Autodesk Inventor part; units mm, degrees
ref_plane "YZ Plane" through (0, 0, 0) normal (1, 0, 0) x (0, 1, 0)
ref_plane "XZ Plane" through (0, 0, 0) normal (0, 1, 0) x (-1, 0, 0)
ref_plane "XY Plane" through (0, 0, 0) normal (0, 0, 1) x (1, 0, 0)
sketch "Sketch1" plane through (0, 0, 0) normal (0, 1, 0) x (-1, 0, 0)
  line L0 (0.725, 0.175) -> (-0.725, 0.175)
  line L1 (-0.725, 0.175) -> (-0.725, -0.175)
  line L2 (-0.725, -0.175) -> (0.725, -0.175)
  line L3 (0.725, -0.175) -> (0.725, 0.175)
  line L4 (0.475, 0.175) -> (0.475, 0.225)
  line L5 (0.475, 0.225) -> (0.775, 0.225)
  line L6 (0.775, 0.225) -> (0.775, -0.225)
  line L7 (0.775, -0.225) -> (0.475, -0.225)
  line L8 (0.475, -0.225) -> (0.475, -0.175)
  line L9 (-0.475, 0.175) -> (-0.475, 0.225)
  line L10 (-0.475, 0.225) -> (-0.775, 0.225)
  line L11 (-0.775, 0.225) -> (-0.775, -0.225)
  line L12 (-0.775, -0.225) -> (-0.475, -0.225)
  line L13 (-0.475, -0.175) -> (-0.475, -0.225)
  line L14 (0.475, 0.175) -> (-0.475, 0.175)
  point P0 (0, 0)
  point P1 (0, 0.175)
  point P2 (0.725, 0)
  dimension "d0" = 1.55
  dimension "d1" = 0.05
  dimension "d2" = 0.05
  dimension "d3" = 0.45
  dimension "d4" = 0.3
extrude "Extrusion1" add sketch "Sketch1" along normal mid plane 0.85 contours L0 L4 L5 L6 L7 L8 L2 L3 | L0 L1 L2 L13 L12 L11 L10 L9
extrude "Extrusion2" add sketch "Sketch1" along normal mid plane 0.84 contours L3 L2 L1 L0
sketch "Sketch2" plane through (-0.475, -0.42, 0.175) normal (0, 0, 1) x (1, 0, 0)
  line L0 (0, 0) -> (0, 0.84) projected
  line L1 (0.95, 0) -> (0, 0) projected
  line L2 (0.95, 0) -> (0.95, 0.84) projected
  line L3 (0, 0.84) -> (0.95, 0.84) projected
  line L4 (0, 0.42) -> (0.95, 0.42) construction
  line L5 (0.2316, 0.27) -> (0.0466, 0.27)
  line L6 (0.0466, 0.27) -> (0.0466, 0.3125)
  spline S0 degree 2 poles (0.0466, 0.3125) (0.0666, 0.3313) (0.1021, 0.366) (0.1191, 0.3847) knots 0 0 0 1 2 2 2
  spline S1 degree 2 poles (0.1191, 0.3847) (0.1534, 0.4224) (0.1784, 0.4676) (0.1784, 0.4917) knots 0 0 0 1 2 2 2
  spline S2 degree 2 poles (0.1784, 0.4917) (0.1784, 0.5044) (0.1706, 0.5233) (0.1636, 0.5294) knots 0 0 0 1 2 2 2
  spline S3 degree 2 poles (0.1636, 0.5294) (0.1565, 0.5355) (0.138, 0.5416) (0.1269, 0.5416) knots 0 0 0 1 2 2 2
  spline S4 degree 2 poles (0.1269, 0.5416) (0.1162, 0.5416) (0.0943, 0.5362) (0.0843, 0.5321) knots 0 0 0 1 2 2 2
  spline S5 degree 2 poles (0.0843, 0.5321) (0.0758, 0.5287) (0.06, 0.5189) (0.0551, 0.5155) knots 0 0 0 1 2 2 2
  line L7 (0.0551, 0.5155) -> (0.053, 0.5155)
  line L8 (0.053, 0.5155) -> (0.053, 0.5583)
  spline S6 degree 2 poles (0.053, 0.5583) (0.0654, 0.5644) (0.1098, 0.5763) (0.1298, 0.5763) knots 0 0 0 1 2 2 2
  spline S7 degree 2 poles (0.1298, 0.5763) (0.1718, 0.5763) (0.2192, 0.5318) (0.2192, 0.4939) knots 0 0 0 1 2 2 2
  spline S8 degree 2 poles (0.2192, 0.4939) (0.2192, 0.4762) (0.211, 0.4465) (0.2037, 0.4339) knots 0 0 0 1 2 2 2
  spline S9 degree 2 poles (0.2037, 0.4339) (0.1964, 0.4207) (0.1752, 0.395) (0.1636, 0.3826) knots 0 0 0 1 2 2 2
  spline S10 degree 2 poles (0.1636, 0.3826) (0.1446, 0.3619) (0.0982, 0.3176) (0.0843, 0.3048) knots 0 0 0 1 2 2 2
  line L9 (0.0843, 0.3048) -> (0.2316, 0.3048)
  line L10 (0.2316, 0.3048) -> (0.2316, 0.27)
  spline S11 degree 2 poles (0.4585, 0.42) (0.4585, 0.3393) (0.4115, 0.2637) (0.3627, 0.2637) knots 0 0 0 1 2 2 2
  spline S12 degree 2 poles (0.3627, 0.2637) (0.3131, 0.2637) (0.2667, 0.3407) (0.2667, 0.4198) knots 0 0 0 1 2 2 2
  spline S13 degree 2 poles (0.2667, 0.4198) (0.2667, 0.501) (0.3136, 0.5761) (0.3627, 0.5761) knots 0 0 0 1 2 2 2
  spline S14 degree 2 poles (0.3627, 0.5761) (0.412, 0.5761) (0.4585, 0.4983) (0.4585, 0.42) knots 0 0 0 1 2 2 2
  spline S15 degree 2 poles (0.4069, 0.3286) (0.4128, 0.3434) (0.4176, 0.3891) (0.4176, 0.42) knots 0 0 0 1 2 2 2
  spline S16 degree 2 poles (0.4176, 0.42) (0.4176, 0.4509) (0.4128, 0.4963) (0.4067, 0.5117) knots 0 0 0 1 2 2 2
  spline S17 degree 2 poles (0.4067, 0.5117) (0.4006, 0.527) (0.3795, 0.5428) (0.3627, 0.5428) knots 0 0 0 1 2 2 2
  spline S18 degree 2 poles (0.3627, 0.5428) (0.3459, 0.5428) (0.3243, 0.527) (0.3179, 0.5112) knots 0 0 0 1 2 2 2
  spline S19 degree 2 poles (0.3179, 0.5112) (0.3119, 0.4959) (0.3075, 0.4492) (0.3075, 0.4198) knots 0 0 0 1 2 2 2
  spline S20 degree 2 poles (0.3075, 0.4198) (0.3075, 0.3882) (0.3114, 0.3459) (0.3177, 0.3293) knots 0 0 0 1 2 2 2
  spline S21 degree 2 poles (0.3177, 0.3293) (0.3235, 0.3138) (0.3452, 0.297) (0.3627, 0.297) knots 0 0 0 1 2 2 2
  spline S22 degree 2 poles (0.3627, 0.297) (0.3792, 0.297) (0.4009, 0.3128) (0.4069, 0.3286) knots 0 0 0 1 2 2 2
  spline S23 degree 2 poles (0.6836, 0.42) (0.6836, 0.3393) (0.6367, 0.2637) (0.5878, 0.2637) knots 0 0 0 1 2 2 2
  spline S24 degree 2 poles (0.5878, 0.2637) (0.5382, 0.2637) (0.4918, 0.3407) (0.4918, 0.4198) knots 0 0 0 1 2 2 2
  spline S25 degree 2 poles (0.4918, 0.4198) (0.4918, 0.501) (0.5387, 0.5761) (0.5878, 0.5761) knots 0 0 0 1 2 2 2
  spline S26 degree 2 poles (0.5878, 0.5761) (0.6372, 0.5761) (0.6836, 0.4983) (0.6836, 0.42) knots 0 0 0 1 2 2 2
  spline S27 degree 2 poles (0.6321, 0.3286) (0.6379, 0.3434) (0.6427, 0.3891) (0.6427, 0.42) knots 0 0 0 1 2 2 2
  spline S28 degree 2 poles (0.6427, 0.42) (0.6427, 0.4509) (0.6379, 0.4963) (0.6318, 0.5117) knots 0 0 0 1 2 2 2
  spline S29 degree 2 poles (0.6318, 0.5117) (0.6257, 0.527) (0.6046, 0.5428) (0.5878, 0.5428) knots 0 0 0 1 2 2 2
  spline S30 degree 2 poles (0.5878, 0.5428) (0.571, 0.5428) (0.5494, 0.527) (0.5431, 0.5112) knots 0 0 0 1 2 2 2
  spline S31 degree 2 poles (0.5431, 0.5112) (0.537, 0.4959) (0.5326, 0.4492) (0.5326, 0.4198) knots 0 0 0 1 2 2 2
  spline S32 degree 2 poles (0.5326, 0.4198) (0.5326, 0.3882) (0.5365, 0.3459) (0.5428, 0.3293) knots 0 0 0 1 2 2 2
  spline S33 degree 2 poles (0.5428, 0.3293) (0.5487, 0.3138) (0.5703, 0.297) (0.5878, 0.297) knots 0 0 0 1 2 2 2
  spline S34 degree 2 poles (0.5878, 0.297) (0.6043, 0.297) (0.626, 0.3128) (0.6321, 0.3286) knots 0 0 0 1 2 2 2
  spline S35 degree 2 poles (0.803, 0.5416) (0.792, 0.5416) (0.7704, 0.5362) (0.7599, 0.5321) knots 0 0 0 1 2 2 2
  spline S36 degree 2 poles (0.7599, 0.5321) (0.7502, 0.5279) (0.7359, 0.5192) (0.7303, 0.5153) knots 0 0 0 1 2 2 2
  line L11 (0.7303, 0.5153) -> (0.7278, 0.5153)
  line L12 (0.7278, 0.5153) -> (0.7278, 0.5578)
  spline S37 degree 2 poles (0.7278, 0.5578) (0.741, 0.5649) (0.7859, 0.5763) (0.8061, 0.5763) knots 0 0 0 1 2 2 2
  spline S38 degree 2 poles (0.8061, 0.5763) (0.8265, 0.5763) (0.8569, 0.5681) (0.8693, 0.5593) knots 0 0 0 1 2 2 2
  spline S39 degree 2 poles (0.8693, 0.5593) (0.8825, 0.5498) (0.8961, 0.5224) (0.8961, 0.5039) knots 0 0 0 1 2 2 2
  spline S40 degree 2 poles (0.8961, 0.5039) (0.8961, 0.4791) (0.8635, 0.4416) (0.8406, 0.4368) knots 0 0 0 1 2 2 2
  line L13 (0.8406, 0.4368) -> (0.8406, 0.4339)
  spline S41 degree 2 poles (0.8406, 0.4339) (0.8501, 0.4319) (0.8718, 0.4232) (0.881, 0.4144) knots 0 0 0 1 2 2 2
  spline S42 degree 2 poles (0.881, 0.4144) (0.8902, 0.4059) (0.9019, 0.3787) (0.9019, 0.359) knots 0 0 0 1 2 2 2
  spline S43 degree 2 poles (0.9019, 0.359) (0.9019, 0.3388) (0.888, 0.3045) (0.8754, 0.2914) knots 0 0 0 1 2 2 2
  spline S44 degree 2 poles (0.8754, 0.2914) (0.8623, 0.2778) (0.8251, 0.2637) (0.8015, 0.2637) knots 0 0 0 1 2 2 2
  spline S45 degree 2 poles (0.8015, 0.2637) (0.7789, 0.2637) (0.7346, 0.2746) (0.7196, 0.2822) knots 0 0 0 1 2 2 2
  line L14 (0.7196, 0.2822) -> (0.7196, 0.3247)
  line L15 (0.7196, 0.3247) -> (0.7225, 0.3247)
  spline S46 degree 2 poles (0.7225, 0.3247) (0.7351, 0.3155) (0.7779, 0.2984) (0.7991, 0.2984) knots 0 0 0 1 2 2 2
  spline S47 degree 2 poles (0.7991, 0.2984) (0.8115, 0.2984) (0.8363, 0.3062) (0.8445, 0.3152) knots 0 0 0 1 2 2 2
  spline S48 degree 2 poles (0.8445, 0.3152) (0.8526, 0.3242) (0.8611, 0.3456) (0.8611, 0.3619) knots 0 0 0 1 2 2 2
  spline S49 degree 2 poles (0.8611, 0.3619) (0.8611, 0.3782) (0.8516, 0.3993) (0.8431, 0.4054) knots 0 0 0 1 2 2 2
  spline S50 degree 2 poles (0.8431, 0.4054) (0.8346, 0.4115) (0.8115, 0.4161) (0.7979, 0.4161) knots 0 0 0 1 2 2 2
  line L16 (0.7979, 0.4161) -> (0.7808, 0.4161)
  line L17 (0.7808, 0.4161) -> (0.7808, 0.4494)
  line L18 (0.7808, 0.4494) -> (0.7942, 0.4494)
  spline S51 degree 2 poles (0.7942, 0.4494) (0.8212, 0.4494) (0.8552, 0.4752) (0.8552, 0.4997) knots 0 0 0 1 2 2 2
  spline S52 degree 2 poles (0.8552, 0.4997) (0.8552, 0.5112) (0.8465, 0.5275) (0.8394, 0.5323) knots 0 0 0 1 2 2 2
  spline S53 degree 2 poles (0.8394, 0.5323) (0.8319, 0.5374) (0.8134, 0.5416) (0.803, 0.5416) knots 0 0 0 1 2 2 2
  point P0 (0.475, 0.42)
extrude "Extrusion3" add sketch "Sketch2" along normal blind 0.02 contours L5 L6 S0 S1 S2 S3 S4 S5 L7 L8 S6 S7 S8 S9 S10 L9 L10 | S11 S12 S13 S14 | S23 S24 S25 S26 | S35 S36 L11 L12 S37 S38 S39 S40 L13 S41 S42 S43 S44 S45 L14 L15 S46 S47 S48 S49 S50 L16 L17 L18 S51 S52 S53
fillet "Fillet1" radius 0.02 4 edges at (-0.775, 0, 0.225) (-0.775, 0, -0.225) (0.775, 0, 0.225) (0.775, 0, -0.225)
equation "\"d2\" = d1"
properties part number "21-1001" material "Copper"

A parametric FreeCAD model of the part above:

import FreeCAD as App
import Part
import Sketcher
from FreeCAD import Vector


def edges_at(feature, points):
    """Names of the edges that pass closest to the given points."""
    edges = feature.Shape.Edges
    near = lambda p: min(range(len(edges)), key=lambda i: edges[i].distToShape(Part.Vertex(*p))[0])
    return sorted({f"Edge{near(p) + 1}" for p in points})


def add_polygon(sketch, points):
    """Adds a closed chain of lines whose ends are joined by coincident constraints."""
    first, n = sketch.GeometryCount, len(points)
    for a, b in zip(points, points[1:] + points[:1]):
        sketch.addGeometry(Part.LineSegment(App.Vector(*a, 0), App.Vector(*b, 0)), False)
    for i in range(n):
        sketch.addConstraint(Sketcher.Constraint("Coincident", first + i, 2, first + (i + 1) % n, 1))

doc = App.newDocument("Part")
body = doc.addObject("PartDesign::Body", "Body")
body.AllowCompound = True

# Sketch on XZ plane
sketch1 = doc.addObject("Sketcher::SketchObject", "Sketch")
body.addObject(sketch1)
sketch1.AttachmentSupport = (doc.XZ_Plane, [""])
sketch1.MapMode = "FlatFace"
add_polygon(sketch1, [(-0.47, 0.17), (-0.72, 0.17), (-0.72, -0.17), (-0.47, -0.17), (-0.47, -0.23), (-0.78, -0.23), (-0.78, 0.23), (-0.47, 0.23)])  # lines 0-7
add_polygon(sketch1, [(0.72, 0.17), (0.47, 0.17), (0.47, 0.23), (0.78, 0.23), (0.78, -0.23), (0.47, -0.23), (0.47, -0.17), (0.72, -0.17)])  # lines 8-15
sketch1.addConstraint(Sketcher.Constraint("Horizontal", 0))
sketch1.addConstraint(Sketcher.Constraint("Vertical", 1))
sketch1.addConstraint(Sketcher.Constraint("Horizontal", 2))
sketch1.addConstraint(Sketcher.Constraint("Vertical", 3))
sketch1.addConstraint(Sketcher.Constraint("Horizontal", 4))
sketch1.addConstraint(Sketcher.Constraint("Vertical", 5))
sketch1.addConstraint(Sketcher.Constraint("Horizontal", 6))
sketch1.addConstraint(Sketcher.Constraint("Vertical", 7))
sketch1.addConstraint(Sketcher.Constraint("Horizontal", 8))
sketch1.addConstraint(Sketcher.Constraint("Vertical", 9))
sketch1.addConstraint(Sketcher.Constraint("Horizontal", 10))
sketch1.addConstraint(Sketcher.Constraint("Vertical", 11))
sketch1.addConstraint(Sketcher.Constraint("Horizontal", 12))
sketch1.addConstraint(Sketcher.Constraint("Vertical", 13))
sketch1.addConstraint(Sketcher.Constraint("Horizontal", 14))
sketch1.addConstraint(Sketcher.Constraint("Vertical", 15))
sketch1.addConstraint(Sketcher.Constraint("Symmetric", 2, 2, 8, 2, -1, 1))
sketch1.addConstraint(Sketcher.Constraint("Symmetric", 4, 2, 10, 2, -1, 1))
sketch1.addConstraint(Sketcher.Constraint("Symmetric", 6, 2, 12, 2, -1, 1))
sketch1.addConstraint(Sketcher.Constraint("Symmetric", 0, 2, 14, 2, -1, 1))
sketch1.addConstraint(Sketcher.Constraint("Symmetric", 7, 2, 8, 2, -2))
sketch1.addConstraint(Sketcher.Constraint("Horizontal", 6, 2, 9, 2))
sketch1.addConstraint(Sketcher.Constraint("DistanceX", 4, 2, 4, 1, 0.3))
sketch1.addConstraint(Sketcher.Constraint("DistanceY", 3, 2, 3, 1, 0.05))
sketch1.addConstraint(Sketcher.Constraint("DistanceY", 5, 1, 5, 2, 0.45))
sketch1.addConstraint(Sketcher.Constraint("DistanceX", 4, 2, 1, 2, 0.05))
sketch1.addConstraint(Sketcher.Constraint("DistanceX", 0, 2, 8, 2, 1.2))
pad1 = doc.addObject("PartDesign::Pad", "Pad")
body.addObject(pad1)
pad1.Profile = sketch1
pad1.Length = 0.85
pad1.Midplane = True

# Sketch on XZ plane
sketch2 = doc.addObject("Sketcher::SketchObject", "Sketch001")
body.addObject(sketch2)
sketch2.AttachmentSupport = (doc.XZ_Plane, [""])
sketch2.MapMode = "FlatFace"
add_polygon(sketch2, [(-0.72, -0.17), (-0.72, 0.17), (0.72, 0.17), (0.72, -0.17)])  # lines 0-3
sketch2.addConstraint(Sketcher.Constraint("Vertical", 0))
sketch2.addConstraint(Sketcher.Constraint("Horizontal", 1))
sketch2.addConstraint(Sketcher.Constraint("Vertical", 2))
sketch2.addConstraint(Sketcher.Constraint("Horizontal", 3))
sketch2.addConstraint(Sketcher.Constraint("Symmetric", 0, 2, 2, 2, -1, 1))
sketch2.addConstraint(Sketcher.Constraint("DistanceX", 1, 1, 1, 2, 1.45))
sketch2.addConstraint(Sketcher.Constraint("DistanceY", 0, 1, 0, 2, 0.35))
pad2 = doc.addObject("PartDesign::Pad", "Pad001")
body.addObject(pad2)
pad2.Profile = sketch2
pad2.Length = 0.84
pad2.Midplane = True

# Sketch on XY plane
sketch3 = doc.addObject("Sketcher::SketchObject", "Sketch002")
body.addObject(sketch3)
sketch3.AttachmentSupport = (doc.XY_Plane, [""])
sketch3.MapMode = "FlatFace"
sketch3.AttachmentOffset = App.Placement(Vector(0, 0, 0.175), App.Rotation())
sketch3.addGeometry(Part.LineSegment(Vector(-0.4284, -0.15, 0), Vector(-0.2434, -0.15, 0)), False)
sketch3.addGeometry(Part.LineSegment(Vector(-0.2434, -0.15, 0), Vector(-0.2434, -0.1152, 0)), False)
sketch3.addGeometry(Part.LineSegment(Vector(-0.2434, -0.1152, 0), Vector(-0.3907, -0.1152, 0)), False)
sketch3.addGeometry(Part.BSplineCurve([Vector(-0.3114, -0.0374, 0), Vector(-0.3304, -0.0581, 0), Vector(-0.3768, -0.1024, 0), Vector(-0.3907, -0.1152, 0)], [3, 1, 3], [0, 1, 2], False, 2, [1, 1, 1, 1], False), False)
sketch3.addGeometry(Part.BSplineCurve([Vector(-0.2713, 0.0139, 0), Vector(-0.2786, 0.0007, 0), Vector(-0.2998, -0.025, 0), Vector(-0.3114, -0.0374, 0)], [3, 1, 3], [0, 1, 2], False, 2, [1, 1, 1, 1], False), False)
sketch3.addGeometry(Part.BSplineCurve([Vector(-0.2558, 0.0739, 0), Vector(-0.2558, 0.0562, 0), Vector(-0.264, 0.0265, 0), Vector(-0.2713, 0.0139, 0)], [3, 1, 3], [0, 1, 2], False, 2, [1, 1, 1, 1], False), False)
sketch3.addGeometry(Part.BSplineCurve([Vector(-0.3452, 0.1563, 0), Vector(-0.3032, 0.1563, 0), Vector(-0.2558, 0.1118, 0), Vector(-0.2558, 0.0739, 0)], [3, 1, 3], [0, 1, 2], False, 2, [1, 1, 1, 1], False), False)
sketch3.addGeometry(Part.BSplineCurve([Vector(-0.422, 0.1383, 0), Vector(-0.4096, 0.1444, 0), Vector(-0.3652, 0.1563, 0), Vector(-0.3452, 0.1563, 0)], [3, 1, 3], [0, 1, 2], False, 2, [1, 1, 1, 1], False), False)
sketch3.addGeometry(Part.LineSegment(Vector(-0.422, 0.1383, 0), Vector(-0.422, 0.0955, 0)), False)
sketch3.addGeometry(Part.LineSegment(Vector(-0.422, 0.0955, 0), Vector(-0.4199, 0.0955, 0)), False)
sketch3.addGeometry(Part.BSplineCurve([Vector(-0.3907, 0.1121, 0), Vector(-0.3992, 0.1087, 0), Vector(-0.415, 0.0989, 0), Vector(-0.4199, 0.0955, 0)], [3, 1, 3], [0, 1, 2], False, 2, [1, 1, 1, 1], False), False)
sketch3.addGeometry(Part.BSplineCurve([Vector(-0.3481, 0.1216, 0), Vector(-0.3588, 0.1216, 0), Vector(-0.3807, 0.1162, 0), Vector(-0.3907, 0.1121, 0)], [3, 1, 3], [0, 1, 2], False, 2, [1, 1, 1, 1], False), False)
sketch3.addGeometry(Part.BSplineCurve([Vector(-0.3114, 0.1094, 0), Vector(-0.3185, 0.1155, 0), Vector(-0.337, 0.1216, 0), Vector(-0.3481, 0.1216, 0)], [3, 1, 3], [0, 1, 2], False, 2, [1, 1, 1, 1], False), False)
sketch3.addGeometry(Part.BSplineCurve([Vector(-0.2966, 0.0717, 0), Vector(-0.2966, 0.0844, 0), Vector(-0.3044, 0.1033, 0), Vector(-0.3114, 0.1094, 0)], [3, 1, 3], [0, 1, 2], False, 2, [1, 1, 1, 1], False), False)
sketch3.addGeometry(Part.BSplineCurve([Vector(-0.3559, -0.0353, 0), Vector(-0.3216, 0.0024, 0), Vector(-0.2966, 0.0476, 0), Vector(-0.2966, 0.0717, 0)], [3, 1, 3], [0, 1, 2], False, 2, [1, 1, 1, 1], False), False)
sketch3.addGeometry(Part.BSplineCurve([Vector(-0.4284, -0.1075, 0), Vector(-0.4084, -0.0887, 0), Vector(-0.3729, -0.054, 0), Vector(-0.3559, -0.0353, 0)], [3, 1, 3], [0, 1, 2], False, 2, [1, 1, 1, 1], False), False)
sketch3.addGeometry(Part.LineSegment(Vector(-0.4284, -0.1075, 0), Vector(-0.4284, -0.15, 0)), False)
sketch3.addGeometry(Part.BSplineCurve([Vector(-0.0165, 0, 0), Vector(-0.0165, -0.0807, 0), Vector(-0.0635, -0.1563, 0), Vector(-0.1123, -0.1563, 0)], [3, 1, 3], [0, 1, 2], False, 2, [1, 1, 1, 1], False), False)
sketch3.addGeometry(Part.BSplineCurve([Vector(-0.1123, 0.1561, 0), Vector(-0.063, 0.1561, 0), Vector(-0.0165, 0.0783, 0), Vector(-0.0165, 0, 0)], [3, 1, 3], [0, 1, 2], False, 2, [1, 1, 1, 1], False), False)
sketch3.addGeometry(Part.BSplineCurve([Vector(-0.2083, -0.0002, 0), Vector(-0.2083, 0.081, 0), Vector(-0.1614, 0.1561, 0), Vector(-0.1123, 0.1561, 0)], [3, 1, 3], [0, 1, 2], False, 2, [1, 1, 1, 1], False), False)
sketch3.addGeometry(Part.BSplineCurve([Vector(-0.1123, -0.1563, 0), Vector(-0.1619, -0.1563, 0), Vector(-0.2083, -0.0793, 0), Vector(-0.2083, -0.0002, 0)], [3, 1, 3], [0, 1, 2], False, 2, [1, 1, 1, 1], False), False)
sketch3.addGeometry(Part.BSplineCurve([Vector(-0.0681, -0.0914, 0), Vector(-0.0622, -0.0766, 0), Vector(-0.0574, -0.0309, 0), Vector(-0.0574, 0, 0)], [3, 1, 3], [0, 1, 2], False, 2, [1, 1, 1, 1], False), False)
sketch3.addGeometry(Part.BSplineCurve([Vector(-0.1123, -0.123, 0), Vector(-0.0958, -0.123, 0), Vector(-0.0741, -0.1072, 0), Vector(-0.0681, -0.0914, 0)], [3, 1, 3], [0, 1, 2], False, 2, [1, 1, 1, 1], False), False)
sketch3.addGeometry(Part.BSplineCurve([Vector(-0.1573, -0.0907, 0), Vector(-0.1515, -0.1062, 0), Vector(-0.1298, -0.123, 0), Vector(-0.1123, -0.123, 0)], [3, 1, 3], [0, 1, 2], False, 2, [1, 1, 1, 1], False), False)
sketch3.addGeometry(Part.BSplineCurve([Vector(-0.1675, -0.0002, 0), Vector(-0.1675, -0.0318, 0), Vector(-0.1636, -0.0741, 0), Vector(-0.1573, -0.0907, 0)], [3, 1, 3], [0, 1, 2], False, 2, [1, 1, 1, 1], False), False)
sketch3.addGeometry(Part.BSplineCurve([Vector(-0.1571, 0.0912, 0), Vector(-0.1631, 0.0759, 0), Vector(-0.1675, 0.0292, 0), Vector(-0.1675, -0.0002, 0)], [3, 1, 3], [0, 1, 2], False, 2, [1, 1, 1, 1], False), False)
sketch3.addGeometry(Part.BSplineCurve([Vector(-0.1123, 0.1228, 0), Vector(-0.1291, 0.1228, 0), Vector(-0.1507, 0.107, 0), Vector(-0.1571, 0.0912, 0)], [3, 1, 3], [0, 1, 2], False, 2, [1, 1, 1, 1], False), False)
sketch3.addGeometry(Part.BSplineCurve([Vector(-0.0683, 0.0917, 0), Vector(-0.0744, 0.107, 0), Vector(-0.0955, 0.1228, 0), Vector(-0.1123, 0.1228, 0)], [3, 1, 3], [0, 1, 2], False, 2, [1, 1, 1, 1], False), False)
sketch3.addGeometry(Part.BSplineCurve([Vector(-0.0574, 0, 0), Vector(-0.0574, 0.0309, 0), Vector(-0.0622, 0.0763, 0), Vector(-0.0683, 0.0917, 0)], [3, 1, 3], [0, 1, 2], False, 2, [1, 1, 1, 1], False), False)
sketch3.addGeometry(Part.BSplineCurve([Vector(0.2086, 0, 0), Vector(0.2086, -0.0807, 0), Vector(0.1617, -0.1563, 0), Vector(0.1128, -0.1563, 0)], [3, 1, 3], [0, 1, 2], False, 2, [1, 1, 1, 1], False), False)
sketch3.addGeometry(Part.BSplineCurve([Vector(0.1128, 0.1561, 0), Vector(0.1622, 0.1561, 0), Vector(0.2086, 0.0783, 0), Vector(0.2086, 0, 0)], [3, 1, 3], [0, 1, 2], False, 2, [1, 1, 1, 1], False), False)
sketch3.addGeometry(Part.BSplineCurve([Vector(0.0168, -0.0002, 0), Vector(0.0168, 0.081, 0), Vector(0.0637, 0.1561, 0), Vector(0.1128, 0.1561, 0)], [3, 1, 3], [0, 1, 2], False, 2, [1, 1, 1, 1], False), False)
sketch3.addGeometry(Part.BSplineCurve([Vector(0.1128, -0.1563, 0), Vector(0.0632, -0.1563, 0), Vector(0.0168, -0.0793, 0), Vector(0.0168, -0.0002, 0)], [3, 1, 3], [0, 1, 2], False, 2, [1, 1, 1, 1], False), False)
sketch3.addGeometry(Part.BSplineCurve([Vector(0.1571, -0.0914, 0), Vector(0.1629, -0.0766, 0), Vector(0.1677, -0.0309, 0), Vector(0.1677, 0, 0)], [3, 1, 3], [0, 1, 2], False, 2, [1, 1, 1, 1], False), False)
sketch3.addGeometry(Part.BSplineCurve([Vector(0.1128, -0.123, 0), Vector(0.1293, -0.123, 0), Vector(0.151, -0.1072, 0), Vector(0.1571, -0.0914, 0)], [3, 1, 3], [0, 1, 2], False, 2, [1, 1, 1, 1], False), False)
sketch3.addGeometry(Part.BSplineCurve([Vector(0.0678, -0.0907, 0), Vector(0.0737, -0.1062, 0), Vector(0.0953, -0.123, 0), Vector(0.1128, -0.123, 0)], [3, 1, 3], [0, 1, 2], False, 2, [1, 1, 1, 1], False), False)
sketch3.addGeometry(Part.BSplineCurve([Vector(0.0576, -0.0002, 0), Vector(0.0576, -0.0318, 0), Vector(0.0615, -0.0741, 0), Vector(0.0678, -0.0907, 0)], [3, 1, 3], [0, 1, 2], False, 2, [1, 1, 1, 1], False), False)
sketch3.addGeometry(Part.BSplineCurve([Vector(0.0681, 0.0912, 0), Vector(0.062, 0.0759, 0), Vector(0.0576, 0.0292, 0), Vector(0.0576, -0.0002, 0)], [3, 1, 3], [0, 1, 2], False, 2, [1, 1, 1, 1], False), False)
sketch3.addGeometry(Part.BSplineCurve([Vector(0.1128, 0.1228, 0), Vector(0.096, 0.1228, 0), Vector(0.0744, 0.107, 0), Vector(0.0681, 0.0912, 0)], [3, 1, 3], [0, 1, 2], False, 2, [1, 1, 1, 1], False), False)
sketch3.addGeometry(Part.BSplineCurve([Vector(0.1568, 0.0917, 0), Vector(0.1507, 0.107, 0), Vector(0.1296, 0.1228, 0), Vector(0.1128, 0.1228, 0)], [3, 1, 3], [0, 1, 2], False, 2, [1, 1, 1, 1], False), False)
sketch3.addGeometry(Part.BSplineCurve([Vector(0.1677, 0, 0), Vector(0.1677, 0.0309, 0), Vector(0.1629, 0.0763, 0), Vector(0.1568, 0.0917, 0)], [3, 1, 3], [0, 1, 2], False, 2, [1, 1, 1, 1], False), False)
sketch3.addGeometry(Part.BSplineCurve([Vector(0.328, 0.1216, 0), Vector(0.317, 0.1216, 0), Vector(0.2954, 0.1162, 0), Vector(0.2849, 0.1121, 0)], [3, 1, 3], [0, 1, 2], False, 2, [1, 1, 1, 1], False), False)
sketch3.addGeometry(Part.BSplineCurve([Vector(0.3644, 0.1123, 0), Vector(0.3569, 0.1174, 0), Vector(0.3384, 0.1216, 0), Vector(0.328, 0.1216, 0)], [3, 1, 3], [0, 1, 2], False, 2, [1, 1, 1, 1], False), False)
sketch3.addGeometry(Part.BSplineCurve([Vector(0.3802, 0.0797, 0), Vector(0.3802, 0.0912, 0), Vector(0.3715, 0.1075, 0), Vector(0.3644, 0.1123, 0)], [3, 1, 3], [0, 1, 2], False, 2, [1, 1, 1, 1], False), False)
sketch3.addGeometry(Part.BSplineCurve([Vector(0.3192, 0.0294, 0), Vector(0.3462, 0.0294, 0), Vector(0.3802, 0.0552, 0), Vector(0.3802, 0.0797, 0)], [3, 1, 3], [0, 1, 2], False, 2, [1, 1, 1, 1], False), False)
sketch3.addGeometry(Part.LineSegment(Vector(0.3192, 0.0294, 0), Vector(0.3058, 0.0294, 0)), False)
sketch3.addGeometry(Part.LineSegment(Vector(0.3058, 0.0294, 0), Vector(0.3058, -0.0039, 0)), False)
sketch3.addGeometry(Part.LineSegment(Vector(0.3058, -0.0039, 0), Vector(0.3229, -0.0039, 0)), False)
sketch3.addGeometry(Part.BSplineCurve([Vector(0.3681, -0.0146, 0), Vector(0.3596, -0.0085, 0), Vector(0.3365, -0.0039, 0), Vector(0.3229, -0.0039, 0)], [3, 1, 3], [0, 1, 2], False, 2, [1, 1, 1, 1], False), False)
sketch3.addGeometry(Part.BSplineCurve([Vector(0.3861, -0.0581, 0), Vector(0.3861, -0.0418, 0), Vector(0.3766, -0.0207, 0), Vector(0.3681, -0.0146, 0)], [3, 1, 3], [0, 1, 2], False, 2, [1, 1, 1, 1], False), False)
sketch3.addGeometry(Part.BSplineCurve([Vector(0.3695, -0.1048, 0), Vector(0.3776, -0.0958, 0), Vector(0.3861, -0.0744, 0), Vector(0.3861, -0.0581, 0)], [3, 1, 3], [0, 1, 2], False, 2, [1, 1, 1, 1], False), False)
sketch3.addGeometry(Part.BSplineCurve([Vector(0.3241, -0.1216, 0), Vector(0.3365, -0.1216, 0), Vector(0.3613, -0.1138, 0), Vector(0.3695, -0.1048, 0)], [3, 1, 3], [0, 1, 2], False, 2, [1, 1, 1, 1], False), False)
sketch3.addGeometry(Part.BSplineCurve([Vector(0.2475, -0.0953, 0), Vector(0.2601, -0.1045, 0), Vector(0.3029, -0.1216, 0), Vector(0.3241, -0.1216, 0)], [3, 1, 3], [0, 1, 2], False, 2, [1, 1, 1, 1], False), False)
sketch3.addGeometry(Part.LineSegment(Vector(0.2475, -0.0953, 0), Vector(0.2446, -0.0953, 0)), False)
sketch3.addGeometry(Part.LineSegment(Vector(0.2446, -0.0953, 0), Vector(0.2446, -0.1378, 0)), False)
sketch3.addGeometry(Part.BSplineCurve([Vector(0.3265, -0.1563, 0), Vector(0.3039, -0.1563, 0), Vector(0.2596, -0.1454, 0), Vector(0.2446, -0.1378, 0)], [3, 1, 3], [0, 1, 2], False, 2, [1, 1, 1, 1], False), False)
sketch3.addGeometry(Part.BSplineCurve([Vector(0.4004, -0.1286, 0), Vector(0.3873, -0.1422, 0), Vector(0.3501, -0.1563, 0), Vector(0.3265, -0.1563, 0)], [3, 1, 3], [0, 1, 2], False, 2, [1, 1, 1, 1], False), False)
sketch3.addGeometry(Part.BSplineCurve([Vector(0.4269, -0.061, 0), Vector(0.4269, -0.0812, 0), Vector(0.413, -0.1155, 0), Vector(0.4004, -0.1286, 0)], [3, 1, 3], [0, 1, 2], False, 2, [1, 1, 1, 1], False), False)
sketch3.addGeometry(Part.BSplineCurve([Vector(0.406, -0.0056, 0), Vector(0.4152, -0.0141, 0), Vector(0.4269, -0.0413, 0), Vector(0.4269, -0.061, 0)], [3, 1, 3], [0, 1, 2], False, 2, [1, 1, 1, 1], False), False)
sketch3.addGeometry(Part.BSplineCurve([Vector(0.3656, 0.0139, 0), Vector(0.3751, 0.0119, 0), Vector(0.3968, 0.0032, 0), Vector(0.406, -0.0056, 0)], [3, 1, 3], [0, 1, 2], False, 2, [1, 1, 1, 1], False), False)
sketch3.addGeometry(Part.LineSegment(Vector(0.3656, 0.0139, 0), Vector(0.3656, 0.0168, 0)), False)
sketch3.addGeometry(Part.BSplineCurve([Vector(0.4211, 0.0839, 0), Vector(0.4211, 0.0591, 0), Vector(0.3885, 0.0216, 0), Vector(0.3656, 0.0168, 0)], [3, 1, 3], [0, 1, 2], False, 2, [1, 1, 1, 1], False), False)
sketch3.addGeometry(Part.BSplineCurve([Vector(0.3943, 0.1393, 0), Vector(0.4075, 0.1298, 0), Vector(0.4211, 0.1024, 0), Vector(0.4211, 0.0839, 0)], [3, 1, 3], [0, 1, 2], False, 2, [1, 1, 1, 1], False), False)
sketch3.addGeometry(Part.BSplineCurve([Vector(0.3311, 0.1563, 0), Vector(0.3515, 0.1563, 0), Vector(0.3819, 0.1481, 0), Vector(0.3943, 0.1393, 0)], [3, 1, 3], [0, 1, 2], False, 2, [1, 1, 1, 1], False), False)
sketch3.addGeometry(Part.BSplineCurve([Vector(0.2528, 0.1378, 0), Vector(0.266, 0.1449, 0), Vector(0.3109, 0.1563, 0), Vector(0.3311, 0.1563, 0)], [3, 1, 3], [0, 1, 2], False, 2, [1, 1, 1, 1], False), False)
sketch3.addGeometry(Part.LineSegment(Vector(0.2528, 0.1378, 0), Vector(0.2528, 0.0953, 0)), False)
sketch3.addGeometry(Part.LineSegment(Vector(0.2528, 0.0953, 0), Vector(0.2553, 0.0953, 0)), False)
sketch3.addGeometry(Part.BSplineCurve([Vector(0.2849, 0.1121, 0), Vector(0.2752, 0.1079, 0), Vector(0.2609, 0.0992, 0), Vector(0.2553, 0.0953, 0)], [3, 1, 3], [0, 1, 2], False, 2, [1, 1, 1, 1], False), False)
sketch3.addConstraint(Sketcher.Constraint("Block", 3))
sketch3.addConstraint(Sketcher.Constraint("Block", 4))
sketch3.addConstraint(Sketcher.Constraint("Block", 5))
sketch3.addConstraint(Sketcher.Constraint("Block", 6))
sketch3.addConstraint(Sketcher.Constraint("Block", 7))
sketch3.addConstraint(Sketcher.Constraint("Block", 10))
sketch3.addConstraint(Sketcher.Constraint("Block", 11))
sketch3.addConstraint(Sketcher.Constraint("Block", 12))
sketch3.addConstraint(Sketcher.Constraint("Block", 13))
sketch3.addConstraint(Sketcher.Constraint("Block", 14))
sketch3.addConstraint(Sketcher.Constraint("Block", 15))
sketch3.addConstraint(Sketcher.Constraint("Block", 17))
sketch3.addConstraint(Sketcher.Constraint("Block", 18))
sketch3.addConstraint(Sketcher.Constraint("Block", 19))
sketch3.addConstraint(Sketcher.Constraint("Block", 20))
sketch3.addConstraint(Sketcher.Constraint("Block", 21))
sketch3.addConstraint(Sketcher.Constraint("Block", 22))
sketch3.addConstraint(Sketcher.Constraint("Block", 23))
sketch3.addConstraint(Sketcher.Constraint("Block", 24))
sketch3.addConstraint(Sketcher.Constraint("Block", 25))
sketch3.addConstraint(Sketcher.Constraint("Block", 26))
sketch3.addConstraint(Sketcher.Constraint("Block", 27))
sketch3.addConstraint(Sketcher.Constraint("Block", 28))
sketch3.addConstraint(Sketcher.Constraint("Block", 29))
sketch3.addConstraint(Sketcher.Constraint("Block", 30))
sketch3.addConstraint(Sketcher.Constraint("Block", 31))
sketch3.addConstraint(Sketcher.Constraint("Block", 32))
sketch3.addConstraint(Sketcher.Constraint("Block", 33))
sketch3.addConstraint(Sketcher.Constraint("Block", 34))
sketch3.addConstraint(Sketcher.Constraint("Block", 35))
sketch3.addConstraint(Sketcher.Constraint("Block", 36))
sketch3.addConstraint(Sketcher.Constraint("Block", 37))
sketch3.addConstraint(Sketcher.Constraint("Block", 38))
sketch3.addConstraint(Sketcher.Constraint("Block", 39))
sketch3.addConstraint(Sketcher.Constraint("Block", 40))
sketch3.addConstraint(Sketcher.Constraint("Block", 41))
sketch3.addConstraint(Sketcher.Constraint("Block", 42))
sketch3.addConstraint(Sketcher.Constraint("Block", 43))
sketch3.addConstraint(Sketcher.Constraint("Block", 44))
sketch3.addConstraint(Sketcher.Constraint("Block", 48))
sketch3.addConstraint(Sketcher.Constraint("Block", 49))
sketch3.addConstraint(Sketcher.Constraint("Block", 50))
sketch3.addConstraint(Sketcher.Constraint("Block", 51))
sketch3.addConstraint(Sketcher.Constraint("Block", 52))
sketch3.addConstraint(Sketcher.Constraint("Block", 55))
sketch3.addConstraint(Sketcher.Constraint("Block", 56))
sketch3.addConstraint(Sketcher.Constraint("Block", 57))
sketch3.addConstraint(Sketcher.Constraint("Block", 58))
sketch3.addConstraint(Sketcher.Constraint("Block", 59))
sketch3.addConstraint(Sketcher.Constraint("Block", 61))
sketch3.addConstraint(Sketcher.Constraint("Block", 62))
sketch3.addConstraint(Sketcher.Constraint("Block", 63))
sketch3.addConstraint(Sketcher.Constraint("Block", 64))
sketch3.addConstraint(Sketcher.Constraint("Block", 67))
sketch3.addConstraint(Sketcher.Constraint("Coincident", 0, 2, 1, 1))
sketch3.addConstraint(Sketcher.Constraint("Coincident", 1, 2, 2, 1))
sketch3.addConstraint(Sketcher.Constraint("Coincident", 2, 2, 3, 2))
sketch3.addConstraint(Sketcher.Constraint("Coincident", 7, 1, 8, 1))
sketch3.addConstraint(Sketcher.Constraint("Coincident", 8, 2, 9, 1))
sketch3.addConstraint(Sketcher.Constraint("Coincident", 9, 2, 10, 2))
sketch3.addConstraint(Sketcher.Constraint("Coincident", 15, 1, 16, 1))
sketch3.addConstraint(Sketcher.Constraint("Coincident", 16, 2, 0, 1))
sketch3.addConstraint(Sketcher.Constraint("Coincident", 44, 1, 45, 1))
sketch3.addConstraint(Sketcher.Constraint("Coincident", 45, 2, 46, 1))
sketch3.addConstraint(Sketcher.Constraint("Coincident", 46, 2, 47, 1))
sketch3.addConstraint(Sketcher.Constraint("Coincident", 47, 2, 48, 2))
sketch3.addConstraint(Sketcher.Constraint("Coincident", 52, 1, 53, 1))
sketch3.addConstraint(Sketcher.Constraint("Coincident", 53, 2, 54, 1))
sketch3.addConstraint(Sketcher.Constraint("Coincident", 54, 2, 55, 2))
sketch3.addConstraint(Sketcher.Constraint("Coincident", 59, 1, 60, 1))
sketch3.addConstraint(Sketcher.Constraint("Coincident", 60, 2, 61, 2))
sketch3.addConstraint(Sketcher.Constraint("Coincident", 64, 1, 65, 1))
sketch3.addConstraint(Sketcher.Constraint("Coincident", 65, 2, 66, 1))
sketch3.addConstraint(Sketcher.Constraint("Coincident", 66, 2, 67, 2))
sketch3.addConstraint(Sketcher.Constraint("Horizontal", 0))
sketch3.addConstraint(Sketcher.Constraint("Vertical", 1))
sketch3.addConstraint(Sketcher.Constraint("Horizontal", 2))
sketch3.addConstraint(Sketcher.Constraint("Vertical", 8))
sketch3.addConstraint(Sketcher.Constraint("Horizontal", 9))
sketch3.addConstraint(Sketcher.Constraint("Vertical", 16))
sketch3.addConstraint(Sketcher.Constraint("Horizontal", 45))
sketch3.addConstraint(Sketcher.Constraint("Vertical", 46))
sketch3.addConstraint(Sketcher.Constraint("Horizontal", 47))
sketch3.addConstraint(Sketcher.Constraint("Horizontal", 53))
sketch3.addConstraint(Sketcher.Constraint("Vertical", 54))
sketch3.addConstraint(Sketcher.Constraint("Vertical", 65))
sketch3.addConstraint(Sketcher.Constraint("Horizontal", 66))
sketch3.addConstraint(Sketcher.Constraint("DistanceX", 0, 1, 0, 2, 0.185))
sketch3.addConstraint(Sketcher.Constraint("DistanceX", 47, 1, 47, 2, 0.017))
sketch3.addConstraint(Sketcher.Constraint("DistanceY", 0, 2, -1, 1, 0.15))
pad3 = doc.addObject("PartDesign::Pad", "Pad002")
body.addObject(pad3)
pad3.Profile = sketch3
pad3.Length = 0.02
doc.recompute()

fillet = doc.addObject("PartDesign::Fillet", "Fillet")
body.addObject(fillet)
fillet.Base = (pad3, edges_at(pad3, [
    (-0.775, 0, 0.225),
    (-0.775, 0, -0.225),
    (0.775, 0, 0.225),
    (0.775, 0, -0.225),
]))
fillet.Radius = 0.02

doc.recompute()
